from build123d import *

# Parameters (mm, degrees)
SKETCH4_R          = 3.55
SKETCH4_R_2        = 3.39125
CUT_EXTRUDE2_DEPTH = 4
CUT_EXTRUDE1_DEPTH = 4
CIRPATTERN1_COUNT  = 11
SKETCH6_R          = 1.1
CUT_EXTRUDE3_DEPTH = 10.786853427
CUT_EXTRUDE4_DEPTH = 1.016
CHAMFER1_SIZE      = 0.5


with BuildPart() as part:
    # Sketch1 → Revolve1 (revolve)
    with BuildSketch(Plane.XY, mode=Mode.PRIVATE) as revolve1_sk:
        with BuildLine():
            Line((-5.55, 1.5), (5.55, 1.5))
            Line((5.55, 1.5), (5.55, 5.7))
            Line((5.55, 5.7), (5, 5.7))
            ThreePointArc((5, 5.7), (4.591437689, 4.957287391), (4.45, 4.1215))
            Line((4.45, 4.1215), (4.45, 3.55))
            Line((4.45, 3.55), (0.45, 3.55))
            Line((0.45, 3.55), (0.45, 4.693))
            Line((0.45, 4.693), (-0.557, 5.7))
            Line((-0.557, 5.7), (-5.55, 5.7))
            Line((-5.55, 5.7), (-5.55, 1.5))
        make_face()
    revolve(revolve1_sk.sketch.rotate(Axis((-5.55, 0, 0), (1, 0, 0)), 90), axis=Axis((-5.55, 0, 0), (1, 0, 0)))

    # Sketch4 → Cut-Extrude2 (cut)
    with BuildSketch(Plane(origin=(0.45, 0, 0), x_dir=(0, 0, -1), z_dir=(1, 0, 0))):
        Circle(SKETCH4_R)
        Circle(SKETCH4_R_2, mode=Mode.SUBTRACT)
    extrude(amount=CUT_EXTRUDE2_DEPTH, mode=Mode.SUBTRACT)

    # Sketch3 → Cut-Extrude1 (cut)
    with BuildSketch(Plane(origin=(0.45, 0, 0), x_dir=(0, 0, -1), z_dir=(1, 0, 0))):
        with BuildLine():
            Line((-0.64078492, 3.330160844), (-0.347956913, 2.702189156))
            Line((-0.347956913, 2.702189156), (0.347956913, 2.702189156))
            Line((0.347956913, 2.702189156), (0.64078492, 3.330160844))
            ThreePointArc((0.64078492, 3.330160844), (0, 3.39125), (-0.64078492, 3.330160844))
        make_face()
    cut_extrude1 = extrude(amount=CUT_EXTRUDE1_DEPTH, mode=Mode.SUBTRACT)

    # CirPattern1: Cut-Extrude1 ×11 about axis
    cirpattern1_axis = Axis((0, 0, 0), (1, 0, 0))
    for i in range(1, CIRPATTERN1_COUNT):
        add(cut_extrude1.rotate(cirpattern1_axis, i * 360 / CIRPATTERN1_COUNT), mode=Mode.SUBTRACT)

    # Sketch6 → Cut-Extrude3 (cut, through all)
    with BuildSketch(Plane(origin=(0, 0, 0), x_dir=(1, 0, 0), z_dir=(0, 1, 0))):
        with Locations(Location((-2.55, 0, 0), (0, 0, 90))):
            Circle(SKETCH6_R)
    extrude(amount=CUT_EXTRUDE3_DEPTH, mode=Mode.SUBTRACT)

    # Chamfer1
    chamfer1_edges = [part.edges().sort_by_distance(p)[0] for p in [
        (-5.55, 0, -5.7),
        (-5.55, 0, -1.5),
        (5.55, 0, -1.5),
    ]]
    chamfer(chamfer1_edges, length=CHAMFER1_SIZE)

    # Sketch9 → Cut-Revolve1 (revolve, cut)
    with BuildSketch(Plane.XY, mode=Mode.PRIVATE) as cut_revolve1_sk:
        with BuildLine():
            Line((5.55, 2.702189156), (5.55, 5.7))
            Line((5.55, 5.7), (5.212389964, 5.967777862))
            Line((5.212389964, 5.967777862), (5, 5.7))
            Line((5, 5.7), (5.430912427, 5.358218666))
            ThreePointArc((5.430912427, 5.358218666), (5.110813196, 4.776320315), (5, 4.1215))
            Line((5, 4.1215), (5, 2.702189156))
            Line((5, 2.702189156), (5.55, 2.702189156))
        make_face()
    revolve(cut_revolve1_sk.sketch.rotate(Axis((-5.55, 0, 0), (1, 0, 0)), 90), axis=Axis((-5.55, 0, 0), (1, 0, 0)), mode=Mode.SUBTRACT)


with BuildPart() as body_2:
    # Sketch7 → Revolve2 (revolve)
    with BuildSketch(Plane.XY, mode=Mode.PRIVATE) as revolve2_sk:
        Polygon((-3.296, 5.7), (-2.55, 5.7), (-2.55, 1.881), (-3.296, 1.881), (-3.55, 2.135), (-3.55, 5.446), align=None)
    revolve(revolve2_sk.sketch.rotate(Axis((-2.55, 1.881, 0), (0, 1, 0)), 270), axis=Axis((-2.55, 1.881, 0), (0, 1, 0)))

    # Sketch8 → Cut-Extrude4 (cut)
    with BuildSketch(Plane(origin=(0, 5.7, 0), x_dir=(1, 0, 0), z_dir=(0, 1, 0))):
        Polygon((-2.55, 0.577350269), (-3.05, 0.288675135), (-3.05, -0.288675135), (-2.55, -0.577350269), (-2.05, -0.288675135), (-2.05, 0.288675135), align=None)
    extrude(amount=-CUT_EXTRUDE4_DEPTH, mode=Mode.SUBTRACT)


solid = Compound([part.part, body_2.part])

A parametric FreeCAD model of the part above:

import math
import FreeCAD as App
import Part
import Sketcher
Q = App.Units.Quantity


def edges_at(feature, points):
    """Names of the edges that pass closest to the given points."""
    edges = feature.Shape.Edges
    near = lambda p: min(range(len(edges)), key=lambda i: edges[i].distToShape(Part.Vertex(*p))[0])
    return sorted({f"Edge{near(p) + 1}" for p in points})


def add_polygon(sketch, points):
    """Adds a closed chain of lines whose ends are joined by coincident constraints."""
    first, n = sketch.GeometryCount, len(points)
    for a, b in zip(points, points[1:] + points[:1]):
        sketch.addGeometry(Part.LineSegment(App.Vector(*a, 0), App.Vector(*b, 0)), False)
    for i in range(n):
        sketch.addConstraint(Sketcher.Constraint("Coincident", first + i, 2, first + (i + 1) % n, 1))

doc = App.newDocument("Part")
body = doc.addObject("PartDesign::Body", "Body")

sketch1 = body.newObject("Sketcher::SketchObject", "Sketch")
sketch1.AttachmentSupport = (doc.getObject("XY_Plane"), [""])
sketch1.MapMode = "FlatFace"
sketch1.addGeometry(Part.LineSegment(App.Vector(-5.55, 1.5, 0), App.Vector(5.55, 1.5, 0)), False)
sketch1.addGeometry(Part.LineSegment(App.Vector(5.55, 1.5, 0), App.Vector(5.55, 5.7, 0)), False)
sketch1.addGeometry(Part.LineSegment(App.Vector(5.55, 5.7, 0), App.Vector(5, 5.7, 0)), False)
sketch1.addGeometry(Part.ArcOfCircle(Part.Circle(App.Vector(6.990148, 4.1215, 0), App.Vector(0, 0, 1), 2.540148), math.radians(141.580051), math.radians(180)), False)
sketch1.addGeometry(Part.LineSegment(App.Vector(4.45, 4.1215, 0), App.Vector(4.45, 3.55, 0)), False)
sketch1.addGeometry(Part.LineSegment(App.Vector(4.45, 3.55, 0), App.Vector(0.45, 3.55, 0)), False)
sketch1.addGeometry(Part.LineSegment(App.Vector(0.45, 3.55, 0), App.Vector(0.45, 4.693, 0)), False)
sketch1.addGeometry(Part.LineSegment(App.Vector(0.45, 4.693, 0), App.Vector(-0.557, 5.7, 0)), False)
sketch1.addGeometry(Part.LineSegment(App.Vector(-0.557, 5.7, 0), App.Vector(-5.55, 5.7, 0)), False)
sketch1.addGeometry(Part.LineSegment(App.Vector(-5.55, 5.7, 0), App.Vector(-5.55, 1.5, 0)), False)
sketch1.addConstraint(Sketcher.Constraint("Coincident", 0, 2, 1, 1))
sketch1.addConstraint(Sketcher.Constraint("Coincident", 1, 2, 2, 1))
sketch1.addConstraint(Sketcher.Constraint("Coincident", 2, 2, 3, 1))
sketch1.addConstraint(Sketcher.Constraint("Tangent", 3, 2, 4, 1))
sketch1.addConstraint(Sketcher.Constraint("Coincident", 4, 2, 5, 1))
sketch1.addConstraint(Sketcher.Constraint("Coincident", 5, 2, 6, 1))
sketch1.addConstraint(Sketcher.Constraint("Coincident", 6, 2, 7, 1))
sketch1.addConstraint(Sketcher.Constraint("Coincident", 7, 2, 8, 1))
sketch1.addConstraint(Sketcher.Constraint("Coincident", 8, 2, 9, 1))
sketch1.addConstraint(Sketcher.Constraint("Coincident", 9, 2, 0, 1))
sketch1.addConstraint(Sketcher.Constraint("Horizontal", 0))
sketch1.addConstraint(Sketcher.Constraint("Vertical", 1))
sketch1.addConstraint(Sketcher.Constraint("Horizontal", 2))
sketch1.addConstraint(Sketcher.Constraint("Vertical", 4))
sketch1.addConstraint(Sketcher.Constraint("Horizontal", 5))
sketch1.addConstraint(Sketcher.Constraint("Vertical", 6))
sketch1.addConstraint(Sketcher.Constraint("Horizontal", 8))
sketch1.addConstraint(Sketcher.Constraint("Vertical", 9))
sketch1.addConstraint(Sketcher.Constraint("Symmetric", 1, 2, 8, 2, -2))
sketch1.addConstraint(Sketcher.Constraint("DistanceX", 5, 2, 5, 1, Q("4 mm")))
sketch1.addConstraint(Sketcher.Constraint("Angle", 7, Q("135 deg")))
sketch1.addConstraint(Sketcher.Constraint("DistanceX", 0, 1, 0, 2, Q("11.1 mm")))
sketch1.addConstraint(Sketcher.Constraint("DistanceY", 1, 1, 1, 2, Q("4.2 mm")))
sketch1.addConstraint(Sketcher.Constraint("DistanceX", -1, 1, 2, 2, Q("5 mm")))
sketch1.addConstraint(Sketcher.Constraint("DistanceX", 8, 2, 6, 2, Q("6 mm")))
sketch1.addConstraint(Sketcher.Constraint("DistanceY", -1, 1, 0, 2, Q("1.5 mm")))
sketch1.addConstraint(Sketcher.Constraint("DistanceX", 8, 2, 8, 1, Q("4.993 mm")))
sketch1.addConstraint(Sketcher.Constraint("DistanceY", 6, 1, 6, 2, Q("1.143 mm")))
sketch1.addConstraint(Sketcher.Constraint("DistanceY", 4, 2, 4, 1, Q("0.5715 mm")))
revolution = body.newObject("PartDesign::Revolution", "Revolution")
revolution.Profile = sketch1
revolution.ReferenceAxis = (sketch1, ["H_Axis"])
revolution.Angle = 360

sketch2 = body.newObject("Sketcher::SketchObject", "Sketch001")
sketch2.AttachmentSupport = (doc.getObject("YZ_Plane"), [""])
sketch2.MapMode = "FlatFace"
sketch2.AttachmentOffset = App.Placement(App.Vector(0, 0, 0.45), App.Rotation())
sketch2.addGeometry(Part.Circle(App.Vector(0, 0, 0), App.Vector(0, 0, 1), 3.55), False)
sketch2.addGeometry(Part.Circle(App.Vector(0, 0, 0), App.Vector(0, 0, 1), 3.39125), False)
sketch2.addConstraint(Sketcher.Constraint("Coincident", 0, 3, -1, 1))
sketch2.addConstraint(Sketcher.Constraint("Coincident", 1, 3, -1, 1))
sketch2.addConstraint(Sketcher.Constraint("Diameter", 0, Q("7.1 mm")))
sketch2.addConstraint(Sketcher.Constraint("Diameter", 1, Q("6.7825 mm")))
pocket1 = body.newObject("PartDesign::Pocket", "Pocket")
pocket1.Profile = sketch2
pocket1.Length = 4
pocket1.Reversed = True

sketch3 = body.newObject("Sketcher::SketchObject", "Sketch002")
sketch3.AttachmentSupport = (doc.getObject("YZ_Plane"), [""])
sketch3.MapMode = "FlatFace"
sketch3.AttachmentOffset = App.Placement(App.Vector(0, 0, 0.45), App.Rotation())
sketch3.addGeometry(Part.LineSegment(App.Vector(3.330161, 0.640785, 0), App.Vector(2.702189, 0.347957, 0)), False)
sketch3.addGeometry(Part.LineSegment(App.Vector(2.702189, 0.347957, 0), App.Vector(2.702189, -0.347957, 0)), False)
sketch3.addGeometry(Part.LineSegment(App.Vector(2.702189, -0.347957, 0), App.Vector(3.330161, -0.640785, 0)), False)
sketch3.addGeometry(Part.ArcOfCircle(Part.Circle(App.Vector(0, 0, 0), App.Vector(0, 0, 1), 3.39125), math.radians(-10.891655), math.radians(10.891655)), False)
sketch3.addConstraint(Sketcher.Constraint("Coincident", 0, 2, 1, 1))
sketch3.addConstraint(Sketcher.Constraint("Coincident", 1, 2, 2, 1))
sketch3.addConstraint(Sketcher.Constraint("Coincident", 2, 2, 3, 1))
sketch3.addConstraint(Sketcher.Constraint("Coincident", 3, 2, 0, 1))
sketch3.addConstraint(Sketcher.Constraint("Vertical", 1))
sketch3.addConstraint(Sketcher.Constraint("Coincident", 3, 3, -1, 1))
sketch3.addConstraint(Sketcher.Constraint("Vertical", 2, 2, 3, 2))
sketch3.addConstraint(Sketcher.Constraint("Equal", 0, 2))
sketch3.addConstraint(Sketcher.Constraint("Angle", 0, Q("-155 deg")))
sketch3.addConstraint(Sketcher.Constraint("Radius", 3, Q("3.39125 mm")))
sketch3.addConstraint(Sketcher.Constraint("Distance", 0, Q("0.69289 mm")))
sketch3.addConstraint(Sketcher.Constraint("DistanceY", 1, 2, 1, 1, Q("0.695914 mm")))
pocket2 = body.newObject("PartDesign::Pocket", "Pocket001")
pocket2.Profile = sketch3
pocket2.Length = 4
pocket2.Reversed = True
doc.recompute()

polarpattern = body.newObject("PartDesign::PolarPattern", "PolarPattern")
polarpattern.Originals = [pocket2]
polarpattern.Axis = (doc.getObject("X_Axis"), [""])
polarpattern.Angle = 360
polarpattern.Occurrences = 11
body.Tip = polarpattern

sketch4 = body.newObject("Sketcher::SketchObject", "Sketch003")
sketch4.AttachmentSupport = (doc.getObject("XZ_Plane"), [""])
sketch4.MapMode = "FlatFace"
sketch4.addGeometry(Part.Circle(App.Vector(-2.55, 0, 0), App.Vector(0, 0, 1), 1.1), False)
sketch4.addConstraint(Sketcher.Constraint("PointOnObject", 0, 3, -1))
sketch4.addConstraint(Sketcher.Constraint("Diameter", 0, Q("2.2 mm")))
sketch4.addConstraint(Sketcher.Constraint("DistanceX", 0, 3, -1, 1, Q("2.55 mm")))
pocket3 = body.newObject("PartDesign::Pocket", "Pocket002")
pocket3.Profile = sketch4
pocket3.Type = "ThroughAll"
doc.recompute()

chamfer = body.newObject("PartDesign::Chamfer", "Chamfer")
chamfer.Base = (pocket3, edges_at(pocket3, [(-5.55, 0, -5.7), (-5.55, 0, -1.5), (5.55, 0, -1.5)]))
chamfer.Size = 0.5

sketch5 = body.newObject("Sketcher::SketchObject", "Sketch004")
sketch5.AttachmentSupport = (doc.getObject("XY_Plane"), [""])
sketch5.MapMode = "FlatFace"
sketch5.addGeometry(Part.LineSegment(App.Vector(5.55, 2.702189, 0), App.Vector(5.55, 5.7, 0)), False)
sketch5.addGeometry(Part.LineSegment(App.Vector(5.55, 5.7, 0), App.Vector(5.21239, 5.967778, 0)), False)
sketch5.addGeometry(Part.LineSegment(App.Vector(5.21239, 5.967778, 0), App.Vector(5, 5.7, 0)), False)
sketch5.addGeometry(Part.LineSegment(App.Vector(5, 5.7, 0), App.Vector(5.430912, 5.358219, 0)), False)
sketch5.addGeometry(Part.ArcOfCircle(Part.Circle(App.Vector(6.990148, 4.1215, 0), App.Vector(0, 0, 1), 1.990148), math.radians(141.580051), math.radians(180)), False)
sketch5.addGeometry(Part.LineSegment(App.Vector(5, 4.1215, 0), App.Vector(5, 2.702189, 0)), False)
sketch5.addGeometry(Part.LineSegment(App.Vector(5, 2.702189, 0), App.Vector(5.55, 2.702189, 0)), False)
sketch5.addConstraint(Sketcher.Constraint("Coincident", 0, 2, 1, 1))
sketch5.addConstraint(Sketcher.Constraint("Coincident", 1, 2, 2, 1))
sketch5.addConstraint(Sketcher.Constraint("Coincident", 2, 2, 3, 1))
sketch5.addConstraint(Sketcher.Constraint("Coincident", 3, 2, 4, 1))
sketch5.addConstraint(Sketcher.Constraint("Tangent", 4, 2, 5, 1))
sketch5.addConstraint(Sketcher.Constraint("Coincident", 5, 2, 6, 1))
sketch5.addConstraint(Sketcher.Constraint("Coincident", 6, 2, 0, 1))
sketch5.addConstraint(Sketcher.Constraint("Vertical", 0))
sketch5.addConstraint(Sketcher.Constraint("Vertical", 5))
sketch5.addConstraint(Sketcher.Constraint("Horizontal", 6))
sketch5.addConstraint(Sketcher.Constraint("Perpendicular", 1, 2))
sketch5.addConstraint(Sketcher.Constraint("Perpendicular", 2, 3))
sketch5.addConstraint(Sketcher.Constraint("Horizontal", 0, 2, 2, 2))
sketch5.addConstraint(Sketcher.Constraint("Vertical", 2, 2, 4, 2))
sketch5.addConstraint(Sketcher.Constraint("DistanceX", -1, 1, 2, 2, Q("5 mm")))
sketch5.addConstraint(Sketcher.Constraint("DistanceX", 6, 1, 6, 2, Q("0.55 mm")))
sketch5.addConstraint(Sketcher.Constraint("DistanceY", -1, 1, 0, 2, Q("5.7 mm")))
sketch5.addConstraint(Sketcher.Constraint("Distance", 3, Q("0.55 mm")))
sketch5.addConstraint(Sketcher.Constraint("Radius", 4, Q("1.990148 mm")))
sketch5.addConstraint(Sketcher.Constraint("DistanceY", 0, 1, 0, 2, Q("2.997811 mm")))
sketch5.addConstraint(Sketcher.Constraint("Distance", 2, Q("0.341781 mm")))
groove = body.newObject("PartDesign::Groove", "Groove")
groove.Profile = sketch5
groove.ReferenceAxis = (sketch5, ["H_Axis"])
groove.Angle = 360
body2 = doc.addObject("PartDesign::Body", "Body001")

sketch6 = body2.newObject("Sketcher::SketchObject", "Sketch005")
sketch6.AttachmentSupport = (doc.getObject("XY_Plane001"), [""])
sketch6.MapMode = "FlatFace"
add_polygon(sketch6, [(-2.55, 5.7), (-3.296, 5.7), (-3.55, 5.446), (-3.55, 2.135), (-3.296, 1.881), (-2.55, 1.881)])
sketch6.addGeometry(Part.LineSegment(App.Vector(-2.55, 1.881, 0), App.Vector(-2.55, 5.7, 0)), True)
sketch6.addConstraint(Sketcher.Constraint("Horizontal", 0))
sketch6.addConstraint(Sketcher.Constraint("Vertical", 2))
sketch6.addConstraint(Sketcher.Constraint("Horizontal", 4))
sketch6.addConstraint(Sketcher.Constraint("Vertical", 5))
sketch6.addConstraint(Sketcher.Constraint("Vertical", 6))
sketch6.addConstraint(Sketcher.Constraint("Coincident", 6, 1, 4, 2))
sketch6.addConstraint(Sketcher.Constraint("Perpendicular", 1, 3))
sketch6.addConstraint(Sketcher.Constraint("Horizontal", 0, 2, 6, 2))
sketch6.addConstraint(Sketcher.Constraint("Vertical", 0, 2, 3, 2))
sketch6.addConstraint(Sketcher.Constraint("Equal", 1, 3))
sketch6.addConstraint(Sketcher.Constraint("DistanceX", 2, 2, 4, 2, Q("1 mm")))
sketch6.addConstraint(Sketcher.Constraint("DistanceY", -1, 1, 0, 2, Q("5.7 mm")))
sketch6.addConstraint(Sketcher.Constraint("DistanceX", 0, 2, 0, 1, Q("0.746 mm")))
sketch6.addConstraint(Sketcher.Constraint("DistanceY", 2, 2, 2, 1, Q("3.311 mm")))
sketch6.addConstraint(Sketcher.Constraint("DistanceX", 1, 2, -1, 1, Q("3.55 mm")))
revolution2 = body2.newObject("PartDesign::Revolution", "Revolution001")
revolution2.Profile = sketch6
revolution2.ReferenceAxis = (sketch6, ["Axis0"])
revolution2.Angle = 360

sketch7 = body2.newObject("Sketcher::SketchObject", "Sketch006")
sketch7.AttachmentSupport = (doc.getObject("XZ_Plane001"), [""])
sketch7.MapMode = "FlatFace"
sketch7.AttachmentOffset = App.Placement(App.Vector(0, 0, -5.7), App.Rotation())
add_polygon(sketch7, [(-2.55, -0.57735), (-3.05, -0.288675), (-3.05, 0.288675), (-2.55, 0.57735), (-2.05, 0.288675), (-2.05, -0.288675)])
sketch7.addConstraint(Sketcher.Constraint("Vertical", 1))
sketch7.addConstraint(Sketcher.Constraint("Vertical", 4))
sketch7.addConstraint(Sketcher.Constraint("Symmetric", 2, 2, 5, 2, -1))
sketch7.addConstraint(Sketcher.Constraint("Parallel", 0, 3))
sketch7.addConstraint(Sketcher.Constraint("Parallel", 2, 5))
sketch7.addConstraint(Sketcher.Constraint("Horizontal", 1, 2, 3, 2))
sketch7.addConstraint(Sketcher.Constraint("Horizontal", 0, 2, 4, 2))
sketch7.addConstraint(Sketcher.Constraint("Angle", 0, Q("150 deg")))
sketch7.addConstraint(Sketcher.Constraint("DistanceX", 1, 2, 3, 2, Q("1 mm")))
sketch7.addConstraint(Sketcher.Constraint("DistanceX", 0, 2, -1, 1, Q("3.05 mm")))
sketch7.addConstraint(Sketcher.Constraint("DistanceY", 1, 1, 1, 2, Q("0.57735 mm")))
pocket4 = body2.newObject("PartDesign::Pocket", "Pocket003")
pocket4.Profile = sketch7
pocket4.Length = 1.016
pocket4.Reversed = True

doc.recompute()
